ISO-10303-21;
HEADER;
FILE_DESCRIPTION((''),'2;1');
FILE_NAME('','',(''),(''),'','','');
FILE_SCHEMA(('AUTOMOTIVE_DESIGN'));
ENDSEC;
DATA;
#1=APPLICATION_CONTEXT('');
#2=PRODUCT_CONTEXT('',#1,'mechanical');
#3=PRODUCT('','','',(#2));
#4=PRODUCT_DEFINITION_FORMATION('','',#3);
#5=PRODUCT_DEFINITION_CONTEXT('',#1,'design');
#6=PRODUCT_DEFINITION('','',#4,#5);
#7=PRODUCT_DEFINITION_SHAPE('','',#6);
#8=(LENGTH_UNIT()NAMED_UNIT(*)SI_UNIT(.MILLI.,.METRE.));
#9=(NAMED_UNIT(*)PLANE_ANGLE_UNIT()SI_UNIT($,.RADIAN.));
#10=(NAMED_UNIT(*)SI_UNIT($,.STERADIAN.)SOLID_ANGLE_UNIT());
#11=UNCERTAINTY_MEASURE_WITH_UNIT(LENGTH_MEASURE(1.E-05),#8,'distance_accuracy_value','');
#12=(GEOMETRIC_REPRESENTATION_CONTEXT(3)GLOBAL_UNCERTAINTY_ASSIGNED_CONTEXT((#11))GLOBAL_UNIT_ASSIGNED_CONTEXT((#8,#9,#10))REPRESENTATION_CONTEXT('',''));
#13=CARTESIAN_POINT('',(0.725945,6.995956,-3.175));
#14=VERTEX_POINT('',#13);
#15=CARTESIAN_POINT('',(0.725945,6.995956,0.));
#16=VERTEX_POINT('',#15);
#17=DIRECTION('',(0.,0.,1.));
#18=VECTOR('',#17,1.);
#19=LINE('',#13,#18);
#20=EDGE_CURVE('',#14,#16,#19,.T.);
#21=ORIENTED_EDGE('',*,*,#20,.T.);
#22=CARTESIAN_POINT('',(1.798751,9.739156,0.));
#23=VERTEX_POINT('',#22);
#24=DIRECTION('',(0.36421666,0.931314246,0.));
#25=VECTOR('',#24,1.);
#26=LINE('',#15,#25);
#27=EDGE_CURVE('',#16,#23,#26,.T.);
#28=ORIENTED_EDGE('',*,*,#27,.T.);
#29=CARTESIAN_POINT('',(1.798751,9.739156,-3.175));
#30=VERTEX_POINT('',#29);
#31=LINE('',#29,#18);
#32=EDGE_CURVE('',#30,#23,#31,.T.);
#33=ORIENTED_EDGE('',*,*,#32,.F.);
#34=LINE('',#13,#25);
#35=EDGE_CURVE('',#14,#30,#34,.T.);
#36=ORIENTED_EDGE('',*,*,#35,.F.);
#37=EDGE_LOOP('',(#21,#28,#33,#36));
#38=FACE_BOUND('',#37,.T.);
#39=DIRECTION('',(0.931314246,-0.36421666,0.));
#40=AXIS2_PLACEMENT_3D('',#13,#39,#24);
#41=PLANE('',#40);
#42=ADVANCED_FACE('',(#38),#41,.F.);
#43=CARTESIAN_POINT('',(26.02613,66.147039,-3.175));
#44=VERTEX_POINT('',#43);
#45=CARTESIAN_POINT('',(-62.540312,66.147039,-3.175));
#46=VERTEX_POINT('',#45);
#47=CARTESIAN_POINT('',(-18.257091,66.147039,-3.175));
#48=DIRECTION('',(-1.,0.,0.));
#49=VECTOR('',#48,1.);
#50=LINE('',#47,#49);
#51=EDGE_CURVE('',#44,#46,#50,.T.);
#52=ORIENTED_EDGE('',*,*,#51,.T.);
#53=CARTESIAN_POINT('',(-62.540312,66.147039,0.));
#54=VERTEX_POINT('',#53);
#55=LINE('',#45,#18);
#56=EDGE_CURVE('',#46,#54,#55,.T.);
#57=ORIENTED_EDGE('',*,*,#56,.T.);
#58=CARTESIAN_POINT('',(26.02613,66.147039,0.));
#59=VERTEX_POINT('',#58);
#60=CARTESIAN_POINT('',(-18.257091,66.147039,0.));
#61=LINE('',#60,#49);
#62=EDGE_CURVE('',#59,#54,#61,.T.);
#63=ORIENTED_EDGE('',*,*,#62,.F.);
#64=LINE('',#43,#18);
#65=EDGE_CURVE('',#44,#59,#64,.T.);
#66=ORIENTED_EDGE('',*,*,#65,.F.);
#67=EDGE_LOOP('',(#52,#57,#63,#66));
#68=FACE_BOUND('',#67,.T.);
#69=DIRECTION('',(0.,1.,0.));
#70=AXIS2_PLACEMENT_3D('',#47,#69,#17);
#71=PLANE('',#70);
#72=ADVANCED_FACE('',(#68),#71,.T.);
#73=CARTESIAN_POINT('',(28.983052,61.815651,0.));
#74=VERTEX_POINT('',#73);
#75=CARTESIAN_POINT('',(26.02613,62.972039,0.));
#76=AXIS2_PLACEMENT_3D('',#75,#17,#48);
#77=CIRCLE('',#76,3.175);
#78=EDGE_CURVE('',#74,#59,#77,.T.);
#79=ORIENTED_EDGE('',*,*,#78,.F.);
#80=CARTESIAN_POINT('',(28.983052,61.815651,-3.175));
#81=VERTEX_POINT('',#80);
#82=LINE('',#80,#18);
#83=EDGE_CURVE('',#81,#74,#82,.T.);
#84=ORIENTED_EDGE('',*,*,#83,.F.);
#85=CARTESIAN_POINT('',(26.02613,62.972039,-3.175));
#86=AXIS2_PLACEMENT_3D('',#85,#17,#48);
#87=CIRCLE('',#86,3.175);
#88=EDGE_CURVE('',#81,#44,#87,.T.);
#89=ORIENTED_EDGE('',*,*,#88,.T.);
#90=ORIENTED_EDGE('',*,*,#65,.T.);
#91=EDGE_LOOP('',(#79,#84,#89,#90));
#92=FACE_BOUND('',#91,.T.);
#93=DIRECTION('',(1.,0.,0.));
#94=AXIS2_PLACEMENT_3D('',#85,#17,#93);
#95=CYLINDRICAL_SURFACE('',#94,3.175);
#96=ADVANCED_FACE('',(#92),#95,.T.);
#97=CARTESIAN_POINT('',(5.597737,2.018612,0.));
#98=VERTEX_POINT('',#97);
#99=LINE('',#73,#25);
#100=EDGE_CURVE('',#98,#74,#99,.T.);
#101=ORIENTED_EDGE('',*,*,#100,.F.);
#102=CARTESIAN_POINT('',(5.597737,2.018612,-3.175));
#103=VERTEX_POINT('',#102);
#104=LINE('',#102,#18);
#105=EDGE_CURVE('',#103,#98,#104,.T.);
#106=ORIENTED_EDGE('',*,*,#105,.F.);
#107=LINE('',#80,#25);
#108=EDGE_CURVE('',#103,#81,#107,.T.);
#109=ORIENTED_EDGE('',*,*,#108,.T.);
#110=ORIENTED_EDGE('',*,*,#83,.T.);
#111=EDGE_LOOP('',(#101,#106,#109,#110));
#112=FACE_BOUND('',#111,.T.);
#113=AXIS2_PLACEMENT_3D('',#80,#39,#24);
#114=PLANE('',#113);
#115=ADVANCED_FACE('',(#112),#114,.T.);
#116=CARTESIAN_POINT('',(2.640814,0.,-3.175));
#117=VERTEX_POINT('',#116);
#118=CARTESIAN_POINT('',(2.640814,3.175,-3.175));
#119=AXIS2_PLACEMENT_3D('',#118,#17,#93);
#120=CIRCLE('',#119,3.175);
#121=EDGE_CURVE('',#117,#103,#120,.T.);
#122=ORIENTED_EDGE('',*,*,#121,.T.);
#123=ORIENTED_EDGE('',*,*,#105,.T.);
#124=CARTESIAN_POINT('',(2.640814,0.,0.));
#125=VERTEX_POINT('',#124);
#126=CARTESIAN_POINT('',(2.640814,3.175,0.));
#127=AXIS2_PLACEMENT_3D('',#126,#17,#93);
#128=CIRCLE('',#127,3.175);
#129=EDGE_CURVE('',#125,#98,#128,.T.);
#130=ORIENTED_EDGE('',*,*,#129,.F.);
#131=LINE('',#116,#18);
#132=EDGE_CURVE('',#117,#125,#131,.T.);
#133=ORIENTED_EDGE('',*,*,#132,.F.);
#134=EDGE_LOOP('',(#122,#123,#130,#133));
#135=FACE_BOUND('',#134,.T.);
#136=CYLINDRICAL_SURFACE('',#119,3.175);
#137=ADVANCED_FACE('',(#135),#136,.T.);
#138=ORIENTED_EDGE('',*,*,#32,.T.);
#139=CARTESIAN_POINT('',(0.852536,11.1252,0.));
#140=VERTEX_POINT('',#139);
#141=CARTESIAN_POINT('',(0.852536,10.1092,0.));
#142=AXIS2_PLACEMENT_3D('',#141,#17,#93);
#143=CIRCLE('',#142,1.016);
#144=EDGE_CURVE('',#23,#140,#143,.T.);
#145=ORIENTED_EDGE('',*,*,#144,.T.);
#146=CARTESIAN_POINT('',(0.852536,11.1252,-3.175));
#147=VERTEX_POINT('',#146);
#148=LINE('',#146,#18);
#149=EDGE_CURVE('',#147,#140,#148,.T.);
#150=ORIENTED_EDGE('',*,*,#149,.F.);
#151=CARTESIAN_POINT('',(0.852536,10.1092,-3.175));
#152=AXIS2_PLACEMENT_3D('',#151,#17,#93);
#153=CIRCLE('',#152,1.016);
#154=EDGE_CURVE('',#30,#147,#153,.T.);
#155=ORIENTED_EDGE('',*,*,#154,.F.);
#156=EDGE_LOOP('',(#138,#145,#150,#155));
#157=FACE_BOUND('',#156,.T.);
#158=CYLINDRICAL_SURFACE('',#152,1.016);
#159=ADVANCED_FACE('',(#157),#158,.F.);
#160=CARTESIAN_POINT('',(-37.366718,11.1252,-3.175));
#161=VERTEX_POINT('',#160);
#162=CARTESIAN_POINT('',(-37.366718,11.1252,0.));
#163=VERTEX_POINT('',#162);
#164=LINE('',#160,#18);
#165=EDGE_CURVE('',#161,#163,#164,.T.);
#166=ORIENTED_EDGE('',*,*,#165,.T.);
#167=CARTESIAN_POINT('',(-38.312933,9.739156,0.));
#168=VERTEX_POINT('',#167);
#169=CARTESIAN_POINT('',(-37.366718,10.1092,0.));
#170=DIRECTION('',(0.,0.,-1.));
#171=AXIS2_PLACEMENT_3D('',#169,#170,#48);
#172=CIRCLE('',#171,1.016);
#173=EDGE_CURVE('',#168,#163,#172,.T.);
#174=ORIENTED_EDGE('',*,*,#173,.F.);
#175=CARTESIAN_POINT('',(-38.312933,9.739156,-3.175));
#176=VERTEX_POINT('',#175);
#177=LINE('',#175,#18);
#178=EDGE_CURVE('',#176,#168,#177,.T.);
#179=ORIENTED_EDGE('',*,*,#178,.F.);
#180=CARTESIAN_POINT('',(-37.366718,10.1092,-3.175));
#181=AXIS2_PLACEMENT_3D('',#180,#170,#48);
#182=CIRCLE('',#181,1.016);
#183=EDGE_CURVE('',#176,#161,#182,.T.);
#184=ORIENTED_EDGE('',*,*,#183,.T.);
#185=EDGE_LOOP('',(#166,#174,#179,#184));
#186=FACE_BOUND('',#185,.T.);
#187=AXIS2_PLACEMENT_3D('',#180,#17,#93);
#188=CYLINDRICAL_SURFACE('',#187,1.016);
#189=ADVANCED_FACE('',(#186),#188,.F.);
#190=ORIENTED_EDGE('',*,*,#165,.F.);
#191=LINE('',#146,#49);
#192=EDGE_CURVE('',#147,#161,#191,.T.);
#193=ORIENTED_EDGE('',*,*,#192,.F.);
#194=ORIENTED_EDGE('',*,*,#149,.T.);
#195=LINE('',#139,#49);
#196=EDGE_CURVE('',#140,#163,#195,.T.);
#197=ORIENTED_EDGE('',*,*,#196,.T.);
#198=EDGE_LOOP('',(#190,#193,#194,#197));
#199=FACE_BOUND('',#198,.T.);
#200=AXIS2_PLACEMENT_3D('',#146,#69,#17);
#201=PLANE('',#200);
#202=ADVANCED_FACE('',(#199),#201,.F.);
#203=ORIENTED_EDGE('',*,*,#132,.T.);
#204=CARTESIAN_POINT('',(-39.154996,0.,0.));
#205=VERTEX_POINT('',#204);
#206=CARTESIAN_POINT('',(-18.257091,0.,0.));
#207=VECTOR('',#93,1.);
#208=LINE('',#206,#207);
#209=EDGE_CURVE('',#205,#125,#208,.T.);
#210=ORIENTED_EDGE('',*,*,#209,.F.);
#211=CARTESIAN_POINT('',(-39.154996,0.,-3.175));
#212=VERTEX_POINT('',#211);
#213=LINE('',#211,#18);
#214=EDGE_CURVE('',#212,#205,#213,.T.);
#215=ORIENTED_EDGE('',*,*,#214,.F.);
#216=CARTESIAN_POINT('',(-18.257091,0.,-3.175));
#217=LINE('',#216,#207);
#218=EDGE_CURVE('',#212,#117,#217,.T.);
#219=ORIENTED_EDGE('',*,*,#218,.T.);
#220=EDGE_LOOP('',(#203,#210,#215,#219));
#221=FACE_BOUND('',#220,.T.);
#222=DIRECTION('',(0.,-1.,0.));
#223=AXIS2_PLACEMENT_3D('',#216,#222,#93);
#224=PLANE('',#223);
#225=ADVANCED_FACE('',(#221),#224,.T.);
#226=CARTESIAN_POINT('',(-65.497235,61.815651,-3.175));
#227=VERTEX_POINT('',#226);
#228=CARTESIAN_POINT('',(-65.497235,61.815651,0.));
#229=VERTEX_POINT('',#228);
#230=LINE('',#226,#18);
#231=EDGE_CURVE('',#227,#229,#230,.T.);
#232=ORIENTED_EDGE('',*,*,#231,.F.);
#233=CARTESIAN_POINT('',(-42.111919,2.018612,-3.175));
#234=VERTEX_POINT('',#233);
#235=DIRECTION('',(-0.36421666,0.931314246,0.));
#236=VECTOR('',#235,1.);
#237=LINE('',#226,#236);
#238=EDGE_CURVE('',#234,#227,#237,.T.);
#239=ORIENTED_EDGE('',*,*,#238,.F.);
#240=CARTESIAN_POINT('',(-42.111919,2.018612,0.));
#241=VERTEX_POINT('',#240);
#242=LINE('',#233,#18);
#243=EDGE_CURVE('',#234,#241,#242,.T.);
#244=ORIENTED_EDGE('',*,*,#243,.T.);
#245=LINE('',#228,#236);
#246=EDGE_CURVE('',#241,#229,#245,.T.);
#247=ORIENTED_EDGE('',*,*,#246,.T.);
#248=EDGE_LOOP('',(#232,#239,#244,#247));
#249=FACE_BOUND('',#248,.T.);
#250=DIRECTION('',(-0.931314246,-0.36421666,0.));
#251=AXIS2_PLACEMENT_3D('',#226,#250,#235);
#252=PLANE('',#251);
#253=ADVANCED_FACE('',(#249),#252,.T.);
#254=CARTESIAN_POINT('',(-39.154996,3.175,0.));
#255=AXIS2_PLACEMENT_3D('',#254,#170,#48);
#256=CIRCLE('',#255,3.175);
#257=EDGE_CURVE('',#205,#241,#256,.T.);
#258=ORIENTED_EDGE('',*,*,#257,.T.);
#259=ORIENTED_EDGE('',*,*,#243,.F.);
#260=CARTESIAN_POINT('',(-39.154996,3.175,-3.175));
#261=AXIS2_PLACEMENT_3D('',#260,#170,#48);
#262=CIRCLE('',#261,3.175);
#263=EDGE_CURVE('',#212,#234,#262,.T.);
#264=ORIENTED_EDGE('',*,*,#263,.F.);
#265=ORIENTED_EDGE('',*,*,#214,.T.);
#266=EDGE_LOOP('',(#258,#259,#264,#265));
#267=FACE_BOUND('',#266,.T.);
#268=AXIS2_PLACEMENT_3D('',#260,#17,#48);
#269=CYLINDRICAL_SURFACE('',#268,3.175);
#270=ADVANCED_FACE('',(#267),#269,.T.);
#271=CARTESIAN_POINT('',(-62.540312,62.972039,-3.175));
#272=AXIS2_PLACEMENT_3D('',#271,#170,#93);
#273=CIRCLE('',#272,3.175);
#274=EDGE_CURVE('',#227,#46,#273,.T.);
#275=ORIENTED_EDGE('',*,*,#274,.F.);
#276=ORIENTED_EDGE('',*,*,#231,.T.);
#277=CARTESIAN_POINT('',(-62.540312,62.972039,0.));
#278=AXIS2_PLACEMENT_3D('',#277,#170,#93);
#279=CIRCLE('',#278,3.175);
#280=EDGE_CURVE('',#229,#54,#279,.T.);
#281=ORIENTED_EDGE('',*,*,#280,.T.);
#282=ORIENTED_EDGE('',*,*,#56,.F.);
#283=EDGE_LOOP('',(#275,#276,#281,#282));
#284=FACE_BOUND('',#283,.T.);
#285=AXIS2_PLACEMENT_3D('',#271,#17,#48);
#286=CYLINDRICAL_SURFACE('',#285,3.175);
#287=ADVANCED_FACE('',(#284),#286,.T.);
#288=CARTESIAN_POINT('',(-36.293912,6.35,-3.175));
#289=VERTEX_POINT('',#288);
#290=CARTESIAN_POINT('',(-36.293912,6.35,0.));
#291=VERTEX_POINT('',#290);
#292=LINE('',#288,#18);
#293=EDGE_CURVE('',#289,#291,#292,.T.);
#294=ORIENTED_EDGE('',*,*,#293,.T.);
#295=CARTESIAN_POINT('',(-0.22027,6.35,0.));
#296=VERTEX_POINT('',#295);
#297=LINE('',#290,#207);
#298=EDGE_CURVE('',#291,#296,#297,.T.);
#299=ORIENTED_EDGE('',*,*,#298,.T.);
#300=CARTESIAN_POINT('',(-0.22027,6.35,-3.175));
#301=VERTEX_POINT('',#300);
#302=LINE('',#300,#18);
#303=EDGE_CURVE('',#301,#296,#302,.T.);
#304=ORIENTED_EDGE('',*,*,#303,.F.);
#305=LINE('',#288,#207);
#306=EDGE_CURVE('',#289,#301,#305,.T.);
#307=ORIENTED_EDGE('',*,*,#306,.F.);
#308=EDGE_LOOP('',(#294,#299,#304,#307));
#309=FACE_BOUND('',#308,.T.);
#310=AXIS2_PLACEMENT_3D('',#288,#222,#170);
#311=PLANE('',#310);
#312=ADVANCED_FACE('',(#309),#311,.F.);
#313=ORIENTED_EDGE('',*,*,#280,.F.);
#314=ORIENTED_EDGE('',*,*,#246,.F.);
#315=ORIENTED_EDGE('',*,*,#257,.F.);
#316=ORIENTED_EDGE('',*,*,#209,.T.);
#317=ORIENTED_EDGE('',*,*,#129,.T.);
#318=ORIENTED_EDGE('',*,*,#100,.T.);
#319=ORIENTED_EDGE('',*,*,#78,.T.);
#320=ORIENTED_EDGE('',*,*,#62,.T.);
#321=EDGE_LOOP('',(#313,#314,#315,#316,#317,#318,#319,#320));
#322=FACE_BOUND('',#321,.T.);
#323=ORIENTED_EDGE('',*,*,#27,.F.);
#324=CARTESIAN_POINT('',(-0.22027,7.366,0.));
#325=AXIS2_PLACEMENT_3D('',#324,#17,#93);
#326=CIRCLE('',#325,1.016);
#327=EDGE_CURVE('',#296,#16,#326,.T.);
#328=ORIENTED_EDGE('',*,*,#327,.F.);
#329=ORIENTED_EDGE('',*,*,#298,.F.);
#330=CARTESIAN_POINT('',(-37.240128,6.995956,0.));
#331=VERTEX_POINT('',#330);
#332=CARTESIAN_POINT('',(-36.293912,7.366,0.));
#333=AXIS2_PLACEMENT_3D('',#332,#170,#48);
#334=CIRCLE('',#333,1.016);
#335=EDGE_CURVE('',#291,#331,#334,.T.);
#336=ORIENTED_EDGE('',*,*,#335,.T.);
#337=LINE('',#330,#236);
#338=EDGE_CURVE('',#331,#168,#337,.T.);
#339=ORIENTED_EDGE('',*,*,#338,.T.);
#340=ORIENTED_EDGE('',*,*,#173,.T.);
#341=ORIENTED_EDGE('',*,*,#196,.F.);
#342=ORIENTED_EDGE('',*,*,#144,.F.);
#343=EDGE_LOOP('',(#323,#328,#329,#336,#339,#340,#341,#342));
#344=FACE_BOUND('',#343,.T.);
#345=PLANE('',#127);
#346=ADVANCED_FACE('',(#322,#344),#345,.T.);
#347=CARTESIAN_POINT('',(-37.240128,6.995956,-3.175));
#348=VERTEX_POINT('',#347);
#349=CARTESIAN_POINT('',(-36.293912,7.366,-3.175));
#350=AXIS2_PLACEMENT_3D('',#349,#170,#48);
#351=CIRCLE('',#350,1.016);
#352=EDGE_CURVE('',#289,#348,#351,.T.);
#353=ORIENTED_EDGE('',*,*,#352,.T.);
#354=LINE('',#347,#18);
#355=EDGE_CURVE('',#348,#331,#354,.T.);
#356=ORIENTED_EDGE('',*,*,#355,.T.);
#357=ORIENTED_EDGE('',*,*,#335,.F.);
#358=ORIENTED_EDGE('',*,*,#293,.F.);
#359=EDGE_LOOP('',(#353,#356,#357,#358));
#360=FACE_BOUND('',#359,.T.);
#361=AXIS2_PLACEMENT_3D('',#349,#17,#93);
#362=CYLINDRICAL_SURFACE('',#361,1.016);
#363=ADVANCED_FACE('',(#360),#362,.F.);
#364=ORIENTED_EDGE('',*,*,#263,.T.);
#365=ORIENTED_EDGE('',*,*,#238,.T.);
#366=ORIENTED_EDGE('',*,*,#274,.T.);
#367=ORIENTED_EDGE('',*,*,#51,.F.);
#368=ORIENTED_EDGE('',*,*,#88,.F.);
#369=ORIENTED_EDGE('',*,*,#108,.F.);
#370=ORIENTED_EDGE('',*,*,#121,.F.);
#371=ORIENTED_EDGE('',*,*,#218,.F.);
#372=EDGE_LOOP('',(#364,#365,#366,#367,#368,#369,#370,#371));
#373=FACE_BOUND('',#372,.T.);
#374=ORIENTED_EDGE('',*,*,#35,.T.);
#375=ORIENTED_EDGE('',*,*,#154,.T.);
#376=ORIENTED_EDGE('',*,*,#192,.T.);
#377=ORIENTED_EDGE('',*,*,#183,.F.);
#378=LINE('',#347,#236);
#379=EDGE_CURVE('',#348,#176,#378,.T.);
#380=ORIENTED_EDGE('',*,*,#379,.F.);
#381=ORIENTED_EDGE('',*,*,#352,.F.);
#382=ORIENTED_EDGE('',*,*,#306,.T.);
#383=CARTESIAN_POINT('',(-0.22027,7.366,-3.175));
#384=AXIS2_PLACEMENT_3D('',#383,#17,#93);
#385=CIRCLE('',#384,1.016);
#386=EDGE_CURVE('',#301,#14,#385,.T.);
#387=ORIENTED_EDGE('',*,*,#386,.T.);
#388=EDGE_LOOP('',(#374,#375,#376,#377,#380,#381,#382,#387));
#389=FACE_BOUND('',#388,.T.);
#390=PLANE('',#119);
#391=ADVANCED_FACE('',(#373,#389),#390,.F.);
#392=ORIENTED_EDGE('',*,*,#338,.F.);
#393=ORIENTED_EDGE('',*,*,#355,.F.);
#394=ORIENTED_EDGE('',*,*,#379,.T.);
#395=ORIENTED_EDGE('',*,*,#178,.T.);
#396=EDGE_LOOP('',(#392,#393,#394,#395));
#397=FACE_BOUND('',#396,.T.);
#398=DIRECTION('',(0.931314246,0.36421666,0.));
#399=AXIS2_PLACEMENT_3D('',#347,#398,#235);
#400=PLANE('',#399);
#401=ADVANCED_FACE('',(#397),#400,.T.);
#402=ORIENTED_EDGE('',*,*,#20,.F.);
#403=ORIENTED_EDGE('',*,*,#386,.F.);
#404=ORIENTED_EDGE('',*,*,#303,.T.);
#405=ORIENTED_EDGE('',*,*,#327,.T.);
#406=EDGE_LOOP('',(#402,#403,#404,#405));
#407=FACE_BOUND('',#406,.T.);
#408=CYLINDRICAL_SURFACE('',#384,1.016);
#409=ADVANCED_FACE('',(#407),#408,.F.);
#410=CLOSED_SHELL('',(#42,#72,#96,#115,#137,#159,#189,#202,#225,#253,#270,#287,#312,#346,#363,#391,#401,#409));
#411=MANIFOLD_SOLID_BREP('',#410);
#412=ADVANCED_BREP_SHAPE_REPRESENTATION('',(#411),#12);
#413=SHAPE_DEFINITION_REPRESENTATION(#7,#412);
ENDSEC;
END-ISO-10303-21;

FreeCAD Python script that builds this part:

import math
import FreeCAD as App
import Part
import Sketcher
Q = App.Units.Quantity

doc = App.newDocument("Part")
body = doc.addObject("PartDesign::Body", "Body")

# Sketch on XY plane
sketch1 = body.newObject("Sketcher::SketchObject", "Sketch")
sketch1.AttachmentSupport = (doc.getObject("XY_Plane"), [""])
sketch1.MapMode = "FlatFace"
sketch1.addGeometry([
    Part.LineSegment(App.Vector(-18.3, 0, 0), App.Vector(2.6, 0, 0)),  # 0
    Part.ArcOfCircle(Part.Circle(App.Vector(2.6, 3.2, 0), App.Vector(0, 0, 1), 3.2), math.radians(-90), math.radians(-21)),  # 1
    Part.LineSegment(App.Vector(5.6, 2, 0), App.Vector(29, 61.8, 0)),  # 2
    Part.ArcOfCircle(Part.Circle(App.Vector(26, 63, 0), App.Vector(0, 0, 1), 3.2), math.radians(-21), math.radians(90)),  # 3
    Part.LineSegment(App.Vector(26, 66.1, 0), App.Vector(-18.3, 66.1, 0)),  # 4
    Part.LineSegment(App.Vector(-18.3, 66.1, 0), App.Vector(-18.3, 0, 0)),  # 5
], False)
sketch1.addConstraint([
    Sketcher.Constraint("Tangent", 0, 2, 1, 1),
    Sketcher.Constraint("Tangent", 1, 2, 2, 1),
    Sketcher.Constraint("Tangent", 2, 2, 3, 1),
    Sketcher.Constraint("Tangent", 3, 2, 4, 1),
    Sketcher.Constraint("Coincident", 4, 2, 5, 1),
    Sketcher.Constraint("Coincident", 5, 2, 0, 1),
    Sketcher.Constraint("Horizontal", 0),
    Sketcher.Constraint("Horizontal", 4),
    Sketcher.Constraint("Vertical", 5),
    Sketcher.Constraint("Equal", 1, 3),
    Sketcher.Constraint("PointOnObject", 0, 2, -1),
    Sketcher.Constraint("Radius", 1, Q("0.125 in")),
    Sketcher.Constraint("DistanceX", 4, 2, 4, 1, Q("44.283221 mm")),
    Sketcher.Constraint("DistanceY", 5, 2, 5, 1, Q("66.147039 mm")),
    Sketcher.Constraint("DistanceX", 0, 1, 0, 2, Q("20.897905 mm")),
    Sketcher.Constraint("DistanceX", -1, 1, 3, 3, Q("26.02613 mm")),
])
pad1 = body.newObject("PartDesign::Pad", "Pad")
pad1.Profile = sketch1
pad1.Length = Q("0.125 in")
pad1.Reversed = True
body2 = doc.addObject("PartDesign::Body", "Body001")
doc.recompute()

body2.BaseFeature = body
doc.recompute()

mirroring = doc.addObject("Part::Mirroring", "Mirroring")
mirroring.Source = body
mirroring.Base = App.Vector(-18.257091, 66.147039, -3.175)
mirroring.Normal = App.Vector(-1, 0, 0)
body3 = doc.addObject("PartDesign::Body", "Body002")
body3.BaseFeature = mirroring
boolean = body2.newObject("PartDesign::Boolean", "Boolean")
boolean.Type = "Fuse"
boolean.addObjects([body3])
doc.recompute()

# Sketch on XY plane
sketch2 = body2.newObject("Sketcher::SketchObject", "Sketch001")
sketch2.AttachmentSupport = (doc.getObject("XY_Plane001"), [""])
sketch2.MapMode = "FlatFace"
sketch2.addGeometry([
    Part.LineSegment(App.Vector(0.7, 7, 0), App.Vector(1.8, 9.7, 0)),  # 0
    Part.ArcOfCircle(Part.Circle(App.Vector(0.9, 10.1, 0), App.Vector(0, 0, 1), 1), math.radians(-21), math.radians(90)),  # 1
    Part.LineSegment(App.Vector(0.9, 11.1, 0), App.Vector(-37.4, 11.1, 0)),  # 2
    Part.ArcOfCircle(Part.Circle(App.Vector(-37.4, 10.1, 0), App.Vector(0, 0, 1), 1), math.radians(90), math.radians(201)),  # 3
    Part.LineSegment(App.Vector(-38.3, 9.7, 0), App.Vector(-37.2, 7, 0)),  # 4
    Part.ArcOfCircle(Part.Circle(App.Vector(-36.3, 7.4, 0), App.Vector(0, 0, 1), 1), math.radians(-159), math.radians(-90)),  # 5
    Part.LineSegment(App.Vector(-36.3, 6.3, 0), App.Vector(-0.2, 6.3, 0)),  # 6
    Part.ArcOfCircle(Part.Circle(App.Vector(-0.2, 7.4, 0), App.Vector(0, 0, 1), 1), math.radians(-90), math.radians(-21)),  # 7
], False)
sketch2.addConstraint([
    Sketcher.Constraint("Tangent", 0, 2, 1, 1),
    Sketcher.Constraint("Tangent", 1, 2, 2, 1),
    Sketcher.Constraint("Tangent", 2, 2, 3, 1),
    Sketcher.Constraint("Tangent", 3, 2, 4, 1),
    Sketcher.Constraint("Tangent", 4, 2, 5, 1),
    Sketcher.Constraint("Tangent", 5, 2, 6, 1),
    Sketcher.Constraint("Tangent", 6, 2, 7, 1),
    Sketcher.Constraint("Tangent", 7, 2, 0, 1),
    Sketcher.Constraint("Horizontal", 2),
    Sketcher.Constraint("Horizontal", 6),
    Sketcher.Constraint("Equal", 1, 3),
    Sketcher.Constraint("Equal", 3, 5),
    Sketcher.Constraint("Equal", 5, 7),
    Sketcher.Constraint("Horizontal", 0, 2, 3, 2),
    Sketcher.Constraint("Radius", 1, Q("0.04 in")),
    Sketcher.Constraint("DistanceY", -1, 1, 5, 3, Q("0.29 in")),
    Sketcher.Constraint("DistanceY", -1, 1, 1, 3, Q("0.398 in")),
    Sketcher.Constraint("DistanceX", 2, 2, 2, 1, Q("38.219254 mm")),
    Sketcher.Constraint("DistanceX", 6, 1, 6, 2, Q("36.073643 mm")),
    Sketcher.Constraint("DistanceX", 7, 3, -1, 1, Q("0.22027 mm")),
])
pocket1 = body2.newObject("PartDesign::Pocket", "Pocket")
pocket1.Profile = sketch2
pocket1.Type = "ThroughAll"
mirroring.Visibility = False

doc.recompute()
